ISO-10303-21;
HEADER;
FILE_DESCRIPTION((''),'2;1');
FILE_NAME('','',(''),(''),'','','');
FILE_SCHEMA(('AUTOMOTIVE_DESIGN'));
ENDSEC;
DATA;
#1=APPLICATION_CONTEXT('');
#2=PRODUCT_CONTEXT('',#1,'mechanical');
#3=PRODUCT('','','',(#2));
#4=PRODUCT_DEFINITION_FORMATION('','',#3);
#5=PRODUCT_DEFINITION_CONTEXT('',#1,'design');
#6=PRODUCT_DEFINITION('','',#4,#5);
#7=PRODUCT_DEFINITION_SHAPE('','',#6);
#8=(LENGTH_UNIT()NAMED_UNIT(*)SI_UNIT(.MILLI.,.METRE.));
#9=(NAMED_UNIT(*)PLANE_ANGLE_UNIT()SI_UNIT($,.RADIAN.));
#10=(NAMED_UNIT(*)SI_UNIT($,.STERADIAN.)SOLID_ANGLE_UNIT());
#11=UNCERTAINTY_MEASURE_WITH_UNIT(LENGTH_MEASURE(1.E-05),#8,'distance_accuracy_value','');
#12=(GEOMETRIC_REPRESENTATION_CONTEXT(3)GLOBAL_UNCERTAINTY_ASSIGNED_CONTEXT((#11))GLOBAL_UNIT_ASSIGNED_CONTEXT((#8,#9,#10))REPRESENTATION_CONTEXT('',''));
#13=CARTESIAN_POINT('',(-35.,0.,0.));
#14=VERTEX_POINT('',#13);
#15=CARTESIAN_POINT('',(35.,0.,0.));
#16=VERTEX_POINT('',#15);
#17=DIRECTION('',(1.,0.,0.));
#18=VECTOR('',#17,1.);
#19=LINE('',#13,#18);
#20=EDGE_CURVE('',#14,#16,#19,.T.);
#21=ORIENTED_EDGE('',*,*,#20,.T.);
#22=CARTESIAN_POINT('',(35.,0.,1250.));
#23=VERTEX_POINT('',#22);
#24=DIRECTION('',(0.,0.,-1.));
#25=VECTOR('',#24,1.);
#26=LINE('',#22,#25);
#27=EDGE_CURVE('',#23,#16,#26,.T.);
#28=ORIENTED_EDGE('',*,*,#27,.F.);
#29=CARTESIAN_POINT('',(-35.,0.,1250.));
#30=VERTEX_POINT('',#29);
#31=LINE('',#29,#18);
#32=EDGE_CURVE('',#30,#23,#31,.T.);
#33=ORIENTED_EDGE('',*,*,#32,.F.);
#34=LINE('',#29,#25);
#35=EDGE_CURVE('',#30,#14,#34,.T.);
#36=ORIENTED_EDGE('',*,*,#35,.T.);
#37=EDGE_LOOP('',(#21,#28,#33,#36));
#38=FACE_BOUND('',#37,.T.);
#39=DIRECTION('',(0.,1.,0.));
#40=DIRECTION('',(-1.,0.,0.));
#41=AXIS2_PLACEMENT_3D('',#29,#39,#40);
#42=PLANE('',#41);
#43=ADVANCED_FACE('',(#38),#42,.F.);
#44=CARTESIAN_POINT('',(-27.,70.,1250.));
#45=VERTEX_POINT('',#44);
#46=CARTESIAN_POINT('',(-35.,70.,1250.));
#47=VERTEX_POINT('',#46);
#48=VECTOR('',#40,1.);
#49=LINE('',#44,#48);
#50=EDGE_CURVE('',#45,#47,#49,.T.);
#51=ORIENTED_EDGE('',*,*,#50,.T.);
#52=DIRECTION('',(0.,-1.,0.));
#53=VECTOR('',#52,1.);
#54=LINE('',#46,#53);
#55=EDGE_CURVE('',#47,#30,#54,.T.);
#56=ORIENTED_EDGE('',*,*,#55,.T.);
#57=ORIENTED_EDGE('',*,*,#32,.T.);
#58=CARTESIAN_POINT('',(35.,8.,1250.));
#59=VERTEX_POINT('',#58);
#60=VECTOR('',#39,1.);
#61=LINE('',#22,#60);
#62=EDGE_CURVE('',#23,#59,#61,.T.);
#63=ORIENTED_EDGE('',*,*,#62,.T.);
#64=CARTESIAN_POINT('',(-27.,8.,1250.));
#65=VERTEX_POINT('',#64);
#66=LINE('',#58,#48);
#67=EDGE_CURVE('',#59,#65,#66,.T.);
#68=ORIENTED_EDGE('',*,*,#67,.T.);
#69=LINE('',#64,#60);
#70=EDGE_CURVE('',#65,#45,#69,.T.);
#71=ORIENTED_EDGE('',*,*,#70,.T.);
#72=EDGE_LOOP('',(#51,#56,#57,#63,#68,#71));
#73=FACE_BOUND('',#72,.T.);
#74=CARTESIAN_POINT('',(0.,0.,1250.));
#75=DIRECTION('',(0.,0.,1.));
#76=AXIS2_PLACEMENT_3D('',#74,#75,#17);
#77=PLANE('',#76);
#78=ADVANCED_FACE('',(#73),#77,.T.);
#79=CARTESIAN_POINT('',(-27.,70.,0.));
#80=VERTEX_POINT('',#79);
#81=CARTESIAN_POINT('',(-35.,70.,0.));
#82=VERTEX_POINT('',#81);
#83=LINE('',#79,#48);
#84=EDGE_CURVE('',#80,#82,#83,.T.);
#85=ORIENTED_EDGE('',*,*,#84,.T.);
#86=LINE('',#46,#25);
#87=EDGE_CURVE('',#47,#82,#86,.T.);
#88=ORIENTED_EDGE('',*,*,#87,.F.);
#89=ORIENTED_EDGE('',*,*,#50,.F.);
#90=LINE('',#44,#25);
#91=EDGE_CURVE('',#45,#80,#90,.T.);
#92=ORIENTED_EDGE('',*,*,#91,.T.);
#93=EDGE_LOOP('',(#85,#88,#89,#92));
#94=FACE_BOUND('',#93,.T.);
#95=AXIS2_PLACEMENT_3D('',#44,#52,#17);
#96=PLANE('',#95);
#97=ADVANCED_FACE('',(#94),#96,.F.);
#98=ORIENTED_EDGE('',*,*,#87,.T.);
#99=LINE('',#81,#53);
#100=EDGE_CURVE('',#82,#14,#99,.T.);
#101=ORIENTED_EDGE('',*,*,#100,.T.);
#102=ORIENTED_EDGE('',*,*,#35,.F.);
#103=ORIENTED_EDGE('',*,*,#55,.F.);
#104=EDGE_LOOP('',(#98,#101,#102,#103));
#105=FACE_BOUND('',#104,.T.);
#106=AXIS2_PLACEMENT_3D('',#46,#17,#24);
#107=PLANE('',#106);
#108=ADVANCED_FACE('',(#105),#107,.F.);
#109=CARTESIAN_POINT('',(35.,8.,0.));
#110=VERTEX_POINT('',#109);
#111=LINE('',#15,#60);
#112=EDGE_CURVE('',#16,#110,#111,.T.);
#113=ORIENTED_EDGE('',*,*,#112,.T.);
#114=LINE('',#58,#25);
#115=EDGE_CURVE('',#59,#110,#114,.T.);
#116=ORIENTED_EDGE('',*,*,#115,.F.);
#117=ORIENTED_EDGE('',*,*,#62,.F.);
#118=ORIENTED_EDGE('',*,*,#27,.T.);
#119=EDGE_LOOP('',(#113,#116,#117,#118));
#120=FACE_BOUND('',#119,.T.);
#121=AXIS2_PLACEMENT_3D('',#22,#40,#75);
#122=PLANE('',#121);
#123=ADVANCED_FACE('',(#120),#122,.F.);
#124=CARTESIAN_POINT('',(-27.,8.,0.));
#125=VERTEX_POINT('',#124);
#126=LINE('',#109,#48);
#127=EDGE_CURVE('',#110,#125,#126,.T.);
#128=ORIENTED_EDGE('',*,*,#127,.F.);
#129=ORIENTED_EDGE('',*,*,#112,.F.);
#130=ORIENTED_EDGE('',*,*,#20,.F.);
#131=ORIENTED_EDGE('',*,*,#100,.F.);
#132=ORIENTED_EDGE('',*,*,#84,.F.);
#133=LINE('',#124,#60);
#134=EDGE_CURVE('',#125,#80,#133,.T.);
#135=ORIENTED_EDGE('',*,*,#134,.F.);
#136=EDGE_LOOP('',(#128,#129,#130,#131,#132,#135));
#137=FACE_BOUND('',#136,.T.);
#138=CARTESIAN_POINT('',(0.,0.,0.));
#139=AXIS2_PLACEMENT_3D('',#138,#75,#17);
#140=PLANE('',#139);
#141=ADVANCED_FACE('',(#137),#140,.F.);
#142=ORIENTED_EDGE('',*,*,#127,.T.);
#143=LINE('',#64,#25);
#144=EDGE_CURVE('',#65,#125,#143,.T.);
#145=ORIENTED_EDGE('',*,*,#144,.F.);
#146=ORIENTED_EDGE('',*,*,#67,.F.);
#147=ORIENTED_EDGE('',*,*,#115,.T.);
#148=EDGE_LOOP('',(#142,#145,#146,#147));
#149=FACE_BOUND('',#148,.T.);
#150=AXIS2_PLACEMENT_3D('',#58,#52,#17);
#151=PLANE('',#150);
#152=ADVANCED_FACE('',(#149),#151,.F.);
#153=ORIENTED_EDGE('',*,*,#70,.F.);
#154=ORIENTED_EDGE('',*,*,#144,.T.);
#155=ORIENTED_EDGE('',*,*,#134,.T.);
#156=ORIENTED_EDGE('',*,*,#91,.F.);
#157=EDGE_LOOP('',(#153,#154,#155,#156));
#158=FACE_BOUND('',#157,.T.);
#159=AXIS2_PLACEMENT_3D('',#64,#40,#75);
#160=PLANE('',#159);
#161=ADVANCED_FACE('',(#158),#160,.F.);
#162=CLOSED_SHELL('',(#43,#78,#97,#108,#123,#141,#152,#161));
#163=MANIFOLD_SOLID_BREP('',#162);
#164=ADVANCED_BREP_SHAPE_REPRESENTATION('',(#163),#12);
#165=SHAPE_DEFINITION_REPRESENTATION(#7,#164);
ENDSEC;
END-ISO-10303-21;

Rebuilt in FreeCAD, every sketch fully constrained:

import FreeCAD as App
import Part
import Sketcher

doc = App.newDocument("Part")
body = doc.addObject("PartDesign::Body", "Body")

sketch1 = doc.addObject("Sketcher::SketchObject", "Sketch")
body.addObject(sketch1)
sketch1.AttachmentSupport = (doc.XY_Plane, [""])
sketch1.MapMode = "FlatFace"
sketch1.addGeometry([
    Part.LineSegment(App.Vector(-35, 70, 0), App.Vector(-35, 0, 0)),
    Part.LineSegment(App.Vector(-35, 0, 0), App.Vector(35, 0, 0)),
    Part.LineSegment(App.Vector(35, 0, 0), App.Vector(35, 8, 0)),
    Part.LineSegment(App.Vector(35, 8, 0), App.Vector(-27, 8, 0)),
    Part.LineSegment(App.Vector(-27, 8, 0), App.Vector(-27, 70, 0)),
    Part.LineSegment(App.Vector(-27, 70, 0), App.Vector(-35, 70, 0)),
], False)
sketch1.addConstraint([
    Sketcher.Constraint("Coincident", 0, 2, 1, 1),
    Sketcher.Constraint("Coincident", 1, 2, 2, 1),
    Sketcher.Constraint("Coincident", 2, 2, 3, 1),
    Sketcher.Constraint("Coincident", 3, 2, 4, 1),
    Sketcher.Constraint("Coincident", 4, 2, 5, 1),
    Sketcher.Constraint("Coincident", 5, 2, 0, 1),
    Sketcher.Constraint("Vertical", 0),
    Sketcher.Constraint("Horizontal", 1),
    Sketcher.Constraint("Vertical", 2),
    Sketcher.Constraint("Horizontal", 3),
    Sketcher.Constraint("Vertical", 4),
    Sketcher.Constraint("Horizontal", 5),
    Sketcher.Constraint("Symmetric", 0, 2, 1, 2, -1, 1),
    Sketcher.Constraint("Equal", 1, 0),
    Sketcher.Constraint("Equal", 5, 2),
    Sketcher.Constraint("DistanceX", 1, 1, 1, 2, 70.0),
    Sketcher.Constraint("DistanceX", 3, 2, 3, 1, 62.0),
])
pad1 = doc.addObject("PartDesign::Pad", "Pad")
body.addObject(pad1)
pad1.Profile = sketch1
pad1.Length = 1250

doc.recompute()
